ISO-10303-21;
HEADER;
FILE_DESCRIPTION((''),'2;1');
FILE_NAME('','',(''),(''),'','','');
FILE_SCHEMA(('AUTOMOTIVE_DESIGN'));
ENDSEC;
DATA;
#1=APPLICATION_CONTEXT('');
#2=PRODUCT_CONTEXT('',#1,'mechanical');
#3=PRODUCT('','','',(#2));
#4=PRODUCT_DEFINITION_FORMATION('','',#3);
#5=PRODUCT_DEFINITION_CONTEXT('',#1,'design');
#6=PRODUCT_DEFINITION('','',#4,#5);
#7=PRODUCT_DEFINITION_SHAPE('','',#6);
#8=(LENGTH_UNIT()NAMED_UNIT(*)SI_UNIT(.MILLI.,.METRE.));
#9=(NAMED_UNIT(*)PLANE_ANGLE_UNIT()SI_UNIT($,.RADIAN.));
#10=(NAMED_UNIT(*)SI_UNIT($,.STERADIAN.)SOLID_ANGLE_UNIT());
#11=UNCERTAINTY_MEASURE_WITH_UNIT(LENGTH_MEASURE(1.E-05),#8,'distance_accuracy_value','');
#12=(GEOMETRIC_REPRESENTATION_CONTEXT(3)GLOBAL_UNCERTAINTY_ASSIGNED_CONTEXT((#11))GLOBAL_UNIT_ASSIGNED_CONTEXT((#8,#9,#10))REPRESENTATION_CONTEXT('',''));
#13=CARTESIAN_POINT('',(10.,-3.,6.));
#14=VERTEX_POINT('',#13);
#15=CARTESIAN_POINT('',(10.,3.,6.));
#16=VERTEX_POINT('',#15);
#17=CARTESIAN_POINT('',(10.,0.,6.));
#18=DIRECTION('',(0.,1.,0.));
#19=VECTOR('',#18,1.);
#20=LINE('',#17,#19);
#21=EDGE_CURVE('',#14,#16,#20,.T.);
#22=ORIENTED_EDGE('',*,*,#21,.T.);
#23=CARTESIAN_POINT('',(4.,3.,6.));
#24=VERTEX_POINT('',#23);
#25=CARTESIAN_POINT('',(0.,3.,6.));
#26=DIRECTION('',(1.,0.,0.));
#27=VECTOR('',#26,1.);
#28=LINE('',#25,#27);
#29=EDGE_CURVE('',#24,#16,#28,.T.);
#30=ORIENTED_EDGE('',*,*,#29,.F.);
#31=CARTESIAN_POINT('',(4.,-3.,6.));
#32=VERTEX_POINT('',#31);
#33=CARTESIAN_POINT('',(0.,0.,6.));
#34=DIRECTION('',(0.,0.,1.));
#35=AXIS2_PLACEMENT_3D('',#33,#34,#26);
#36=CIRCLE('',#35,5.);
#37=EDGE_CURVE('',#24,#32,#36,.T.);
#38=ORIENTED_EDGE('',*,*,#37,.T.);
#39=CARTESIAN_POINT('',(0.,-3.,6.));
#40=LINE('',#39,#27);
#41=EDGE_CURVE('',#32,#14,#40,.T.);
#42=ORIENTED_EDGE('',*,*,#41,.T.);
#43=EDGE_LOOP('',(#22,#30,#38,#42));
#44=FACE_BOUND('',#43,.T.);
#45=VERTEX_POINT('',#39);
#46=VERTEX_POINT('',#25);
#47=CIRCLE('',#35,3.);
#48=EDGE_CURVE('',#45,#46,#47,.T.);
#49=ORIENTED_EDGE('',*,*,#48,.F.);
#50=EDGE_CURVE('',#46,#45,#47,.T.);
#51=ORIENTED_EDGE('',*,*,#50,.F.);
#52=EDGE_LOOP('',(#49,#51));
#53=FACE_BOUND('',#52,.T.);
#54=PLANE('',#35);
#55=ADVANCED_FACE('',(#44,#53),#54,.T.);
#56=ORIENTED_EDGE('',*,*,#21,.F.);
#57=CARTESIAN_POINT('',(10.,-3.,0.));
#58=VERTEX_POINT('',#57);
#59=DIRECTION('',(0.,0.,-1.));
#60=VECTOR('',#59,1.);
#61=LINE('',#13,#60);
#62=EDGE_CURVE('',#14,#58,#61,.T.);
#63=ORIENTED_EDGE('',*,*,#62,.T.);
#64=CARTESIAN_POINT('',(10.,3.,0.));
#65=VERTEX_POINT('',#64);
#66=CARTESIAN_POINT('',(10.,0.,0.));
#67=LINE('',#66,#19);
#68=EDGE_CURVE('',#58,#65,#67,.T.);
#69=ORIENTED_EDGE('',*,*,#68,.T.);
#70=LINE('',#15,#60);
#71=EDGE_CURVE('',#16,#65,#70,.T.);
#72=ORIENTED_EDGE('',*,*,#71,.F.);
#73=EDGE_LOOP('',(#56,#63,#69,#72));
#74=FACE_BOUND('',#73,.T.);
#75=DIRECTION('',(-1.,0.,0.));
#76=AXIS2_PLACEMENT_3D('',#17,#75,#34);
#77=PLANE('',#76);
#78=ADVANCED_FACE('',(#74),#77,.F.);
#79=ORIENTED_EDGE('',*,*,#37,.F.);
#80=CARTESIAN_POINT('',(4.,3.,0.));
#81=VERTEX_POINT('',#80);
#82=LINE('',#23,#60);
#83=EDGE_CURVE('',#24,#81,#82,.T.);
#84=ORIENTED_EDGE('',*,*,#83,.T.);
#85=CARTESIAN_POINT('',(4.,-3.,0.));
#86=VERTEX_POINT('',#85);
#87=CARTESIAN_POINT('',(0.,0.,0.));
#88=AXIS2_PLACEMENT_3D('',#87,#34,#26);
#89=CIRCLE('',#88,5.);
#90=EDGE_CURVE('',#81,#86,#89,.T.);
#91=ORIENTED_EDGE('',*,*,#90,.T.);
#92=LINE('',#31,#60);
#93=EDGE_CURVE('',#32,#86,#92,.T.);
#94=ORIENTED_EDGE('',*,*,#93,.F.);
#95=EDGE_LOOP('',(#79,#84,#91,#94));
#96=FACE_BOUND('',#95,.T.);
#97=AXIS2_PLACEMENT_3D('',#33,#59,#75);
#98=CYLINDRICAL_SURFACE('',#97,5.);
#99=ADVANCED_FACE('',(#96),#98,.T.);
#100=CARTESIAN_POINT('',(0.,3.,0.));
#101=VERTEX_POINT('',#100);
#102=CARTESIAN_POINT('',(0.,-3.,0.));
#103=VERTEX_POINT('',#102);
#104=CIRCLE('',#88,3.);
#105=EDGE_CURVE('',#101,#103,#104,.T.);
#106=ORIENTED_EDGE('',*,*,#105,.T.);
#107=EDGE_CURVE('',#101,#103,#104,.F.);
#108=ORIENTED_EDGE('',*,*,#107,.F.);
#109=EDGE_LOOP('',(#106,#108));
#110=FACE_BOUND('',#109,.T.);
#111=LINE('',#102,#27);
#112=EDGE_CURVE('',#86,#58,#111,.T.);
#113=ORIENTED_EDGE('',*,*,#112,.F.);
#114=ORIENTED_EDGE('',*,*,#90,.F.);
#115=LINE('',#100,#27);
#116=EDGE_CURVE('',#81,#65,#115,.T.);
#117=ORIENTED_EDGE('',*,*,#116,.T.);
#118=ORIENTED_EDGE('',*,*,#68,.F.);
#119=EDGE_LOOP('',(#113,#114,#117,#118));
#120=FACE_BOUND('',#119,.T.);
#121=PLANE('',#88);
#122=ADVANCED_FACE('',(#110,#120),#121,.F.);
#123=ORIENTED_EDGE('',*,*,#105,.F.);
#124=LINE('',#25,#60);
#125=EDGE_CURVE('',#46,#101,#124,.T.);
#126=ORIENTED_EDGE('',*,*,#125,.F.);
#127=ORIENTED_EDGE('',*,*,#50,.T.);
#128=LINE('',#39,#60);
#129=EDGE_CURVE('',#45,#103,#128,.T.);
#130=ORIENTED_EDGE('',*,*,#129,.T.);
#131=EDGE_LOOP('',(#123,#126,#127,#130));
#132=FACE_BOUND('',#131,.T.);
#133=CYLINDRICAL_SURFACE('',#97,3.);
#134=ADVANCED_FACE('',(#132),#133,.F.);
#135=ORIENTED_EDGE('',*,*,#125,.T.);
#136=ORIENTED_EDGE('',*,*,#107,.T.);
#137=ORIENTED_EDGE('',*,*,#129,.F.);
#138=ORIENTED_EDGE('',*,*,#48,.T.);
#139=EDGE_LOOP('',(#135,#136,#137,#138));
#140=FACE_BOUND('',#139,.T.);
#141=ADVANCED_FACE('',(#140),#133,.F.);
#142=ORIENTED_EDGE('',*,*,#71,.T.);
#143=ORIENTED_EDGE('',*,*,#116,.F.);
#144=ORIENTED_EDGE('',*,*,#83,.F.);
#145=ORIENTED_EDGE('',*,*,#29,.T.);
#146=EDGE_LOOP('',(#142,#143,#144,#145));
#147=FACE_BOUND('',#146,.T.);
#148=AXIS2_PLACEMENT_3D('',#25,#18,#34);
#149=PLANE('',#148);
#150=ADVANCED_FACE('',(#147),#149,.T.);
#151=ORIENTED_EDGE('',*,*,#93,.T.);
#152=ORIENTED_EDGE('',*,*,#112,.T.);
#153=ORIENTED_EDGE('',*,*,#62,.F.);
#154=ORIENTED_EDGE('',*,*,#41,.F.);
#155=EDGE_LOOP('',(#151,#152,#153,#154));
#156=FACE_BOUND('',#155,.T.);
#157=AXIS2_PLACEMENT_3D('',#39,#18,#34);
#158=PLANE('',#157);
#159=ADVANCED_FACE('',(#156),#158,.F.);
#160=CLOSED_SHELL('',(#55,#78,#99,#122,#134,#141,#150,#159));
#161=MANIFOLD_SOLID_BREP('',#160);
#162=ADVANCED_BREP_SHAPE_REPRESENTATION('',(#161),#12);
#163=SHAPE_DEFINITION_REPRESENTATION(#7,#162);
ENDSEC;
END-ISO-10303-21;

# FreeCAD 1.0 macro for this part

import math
import FreeCAD as App
import Part
import Sketcher

V = App.Vector
Q = App.Units.Quantity

doc = App.newDocument("Part")
params = doc.addObject("Spreadsheet::Sheet", "Params")
for row, (alias, value) in enumerate([
    ("sketch1_diameter", "6 mm"),
    ("sketch1_radius", "5 mm"),
    ("sketch1_width", "6 mm"),
    ("pad1_length", "6 mm"),
], start=1):
    params.set(f"A{row}", alias)
    params.set(f"B{row}", "=" + value)
    params.setAlias(f"B{row}", alias)

body = doc.addObject("PartDesign::Body", "Body")

# Sketch on XY plane
sketch1 = body.newObject("Sketcher::SketchObject", "Sketch")
sketch1.AttachmentSupport = (doc.getObject("XY_Plane"), [""])
sketch1.MapMode = "FlatFace"
sketch1.addGeometry([
    Part.ArcOfCircle(Part.Circle(V(0, 0, 0), V(0, 0, 1), 5), math.radians(37), math.radians(323)),  # 0
    Part.LineSegment(V(4, -3, 0), V(10, -3, 0)),  # 1
    Part.LineSegment(V(10, -3, 0), V(10, 3, 0)),  # 2
    Part.LineSegment(V(10, 3, 0), V(4, 3, 0)),  # 3
    Part.Circle(V(0, 0, 0), V(0, 0, 1), 3),  # 4
], False)
sketch1.addConstraint([
    Sketcher.Constraint("Coincident", 0, 2, 1, 1),
    Sketcher.Constraint("Coincident", 1, 2, 2, 1),
    Sketcher.Constraint("Coincident", 2, 2, 3, 1),
    Sketcher.Constraint("Coincident", 3, 2, 0, 1),
    Sketcher.Constraint("Horizontal", 1),
    Sketcher.Constraint("Vertical", 2),
    Sketcher.Constraint("Horizontal", 3),
    Sketcher.Constraint("Coincident", 0, 3, -1, 1),
    Sketcher.Constraint("Coincident", 4, 3, -1, 1),
    Sketcher.Constraint("Vertical", 0, 2, 3, 2),
    Sketcher.Constraint("Equal", 3, 2),
    Sketcher.Constraint("Diameter", 4, Q("6 mm")),
    Sketcher.Constraint("Radius", 0, Q("5 mm")),
    Sketcher.Constraint("DistanceX", 1, 1, 1, 2, Q("6 mm")),
])
sketch1.setExpression("Constraints[11]", "Params.sketch1_diameter")
sketch1.setExpression("Constraints[12]", "Params.sketch1_radius")
sketch1.setExpression("Constraints[13]", "Params.sketch1_width")
pad1 = body.newObject("PartDesign::Pad", "Pad")
pad1.Profile = sketch1
pad1.setExpression("Length", "Params.pad1_length")

doc.recompute()
